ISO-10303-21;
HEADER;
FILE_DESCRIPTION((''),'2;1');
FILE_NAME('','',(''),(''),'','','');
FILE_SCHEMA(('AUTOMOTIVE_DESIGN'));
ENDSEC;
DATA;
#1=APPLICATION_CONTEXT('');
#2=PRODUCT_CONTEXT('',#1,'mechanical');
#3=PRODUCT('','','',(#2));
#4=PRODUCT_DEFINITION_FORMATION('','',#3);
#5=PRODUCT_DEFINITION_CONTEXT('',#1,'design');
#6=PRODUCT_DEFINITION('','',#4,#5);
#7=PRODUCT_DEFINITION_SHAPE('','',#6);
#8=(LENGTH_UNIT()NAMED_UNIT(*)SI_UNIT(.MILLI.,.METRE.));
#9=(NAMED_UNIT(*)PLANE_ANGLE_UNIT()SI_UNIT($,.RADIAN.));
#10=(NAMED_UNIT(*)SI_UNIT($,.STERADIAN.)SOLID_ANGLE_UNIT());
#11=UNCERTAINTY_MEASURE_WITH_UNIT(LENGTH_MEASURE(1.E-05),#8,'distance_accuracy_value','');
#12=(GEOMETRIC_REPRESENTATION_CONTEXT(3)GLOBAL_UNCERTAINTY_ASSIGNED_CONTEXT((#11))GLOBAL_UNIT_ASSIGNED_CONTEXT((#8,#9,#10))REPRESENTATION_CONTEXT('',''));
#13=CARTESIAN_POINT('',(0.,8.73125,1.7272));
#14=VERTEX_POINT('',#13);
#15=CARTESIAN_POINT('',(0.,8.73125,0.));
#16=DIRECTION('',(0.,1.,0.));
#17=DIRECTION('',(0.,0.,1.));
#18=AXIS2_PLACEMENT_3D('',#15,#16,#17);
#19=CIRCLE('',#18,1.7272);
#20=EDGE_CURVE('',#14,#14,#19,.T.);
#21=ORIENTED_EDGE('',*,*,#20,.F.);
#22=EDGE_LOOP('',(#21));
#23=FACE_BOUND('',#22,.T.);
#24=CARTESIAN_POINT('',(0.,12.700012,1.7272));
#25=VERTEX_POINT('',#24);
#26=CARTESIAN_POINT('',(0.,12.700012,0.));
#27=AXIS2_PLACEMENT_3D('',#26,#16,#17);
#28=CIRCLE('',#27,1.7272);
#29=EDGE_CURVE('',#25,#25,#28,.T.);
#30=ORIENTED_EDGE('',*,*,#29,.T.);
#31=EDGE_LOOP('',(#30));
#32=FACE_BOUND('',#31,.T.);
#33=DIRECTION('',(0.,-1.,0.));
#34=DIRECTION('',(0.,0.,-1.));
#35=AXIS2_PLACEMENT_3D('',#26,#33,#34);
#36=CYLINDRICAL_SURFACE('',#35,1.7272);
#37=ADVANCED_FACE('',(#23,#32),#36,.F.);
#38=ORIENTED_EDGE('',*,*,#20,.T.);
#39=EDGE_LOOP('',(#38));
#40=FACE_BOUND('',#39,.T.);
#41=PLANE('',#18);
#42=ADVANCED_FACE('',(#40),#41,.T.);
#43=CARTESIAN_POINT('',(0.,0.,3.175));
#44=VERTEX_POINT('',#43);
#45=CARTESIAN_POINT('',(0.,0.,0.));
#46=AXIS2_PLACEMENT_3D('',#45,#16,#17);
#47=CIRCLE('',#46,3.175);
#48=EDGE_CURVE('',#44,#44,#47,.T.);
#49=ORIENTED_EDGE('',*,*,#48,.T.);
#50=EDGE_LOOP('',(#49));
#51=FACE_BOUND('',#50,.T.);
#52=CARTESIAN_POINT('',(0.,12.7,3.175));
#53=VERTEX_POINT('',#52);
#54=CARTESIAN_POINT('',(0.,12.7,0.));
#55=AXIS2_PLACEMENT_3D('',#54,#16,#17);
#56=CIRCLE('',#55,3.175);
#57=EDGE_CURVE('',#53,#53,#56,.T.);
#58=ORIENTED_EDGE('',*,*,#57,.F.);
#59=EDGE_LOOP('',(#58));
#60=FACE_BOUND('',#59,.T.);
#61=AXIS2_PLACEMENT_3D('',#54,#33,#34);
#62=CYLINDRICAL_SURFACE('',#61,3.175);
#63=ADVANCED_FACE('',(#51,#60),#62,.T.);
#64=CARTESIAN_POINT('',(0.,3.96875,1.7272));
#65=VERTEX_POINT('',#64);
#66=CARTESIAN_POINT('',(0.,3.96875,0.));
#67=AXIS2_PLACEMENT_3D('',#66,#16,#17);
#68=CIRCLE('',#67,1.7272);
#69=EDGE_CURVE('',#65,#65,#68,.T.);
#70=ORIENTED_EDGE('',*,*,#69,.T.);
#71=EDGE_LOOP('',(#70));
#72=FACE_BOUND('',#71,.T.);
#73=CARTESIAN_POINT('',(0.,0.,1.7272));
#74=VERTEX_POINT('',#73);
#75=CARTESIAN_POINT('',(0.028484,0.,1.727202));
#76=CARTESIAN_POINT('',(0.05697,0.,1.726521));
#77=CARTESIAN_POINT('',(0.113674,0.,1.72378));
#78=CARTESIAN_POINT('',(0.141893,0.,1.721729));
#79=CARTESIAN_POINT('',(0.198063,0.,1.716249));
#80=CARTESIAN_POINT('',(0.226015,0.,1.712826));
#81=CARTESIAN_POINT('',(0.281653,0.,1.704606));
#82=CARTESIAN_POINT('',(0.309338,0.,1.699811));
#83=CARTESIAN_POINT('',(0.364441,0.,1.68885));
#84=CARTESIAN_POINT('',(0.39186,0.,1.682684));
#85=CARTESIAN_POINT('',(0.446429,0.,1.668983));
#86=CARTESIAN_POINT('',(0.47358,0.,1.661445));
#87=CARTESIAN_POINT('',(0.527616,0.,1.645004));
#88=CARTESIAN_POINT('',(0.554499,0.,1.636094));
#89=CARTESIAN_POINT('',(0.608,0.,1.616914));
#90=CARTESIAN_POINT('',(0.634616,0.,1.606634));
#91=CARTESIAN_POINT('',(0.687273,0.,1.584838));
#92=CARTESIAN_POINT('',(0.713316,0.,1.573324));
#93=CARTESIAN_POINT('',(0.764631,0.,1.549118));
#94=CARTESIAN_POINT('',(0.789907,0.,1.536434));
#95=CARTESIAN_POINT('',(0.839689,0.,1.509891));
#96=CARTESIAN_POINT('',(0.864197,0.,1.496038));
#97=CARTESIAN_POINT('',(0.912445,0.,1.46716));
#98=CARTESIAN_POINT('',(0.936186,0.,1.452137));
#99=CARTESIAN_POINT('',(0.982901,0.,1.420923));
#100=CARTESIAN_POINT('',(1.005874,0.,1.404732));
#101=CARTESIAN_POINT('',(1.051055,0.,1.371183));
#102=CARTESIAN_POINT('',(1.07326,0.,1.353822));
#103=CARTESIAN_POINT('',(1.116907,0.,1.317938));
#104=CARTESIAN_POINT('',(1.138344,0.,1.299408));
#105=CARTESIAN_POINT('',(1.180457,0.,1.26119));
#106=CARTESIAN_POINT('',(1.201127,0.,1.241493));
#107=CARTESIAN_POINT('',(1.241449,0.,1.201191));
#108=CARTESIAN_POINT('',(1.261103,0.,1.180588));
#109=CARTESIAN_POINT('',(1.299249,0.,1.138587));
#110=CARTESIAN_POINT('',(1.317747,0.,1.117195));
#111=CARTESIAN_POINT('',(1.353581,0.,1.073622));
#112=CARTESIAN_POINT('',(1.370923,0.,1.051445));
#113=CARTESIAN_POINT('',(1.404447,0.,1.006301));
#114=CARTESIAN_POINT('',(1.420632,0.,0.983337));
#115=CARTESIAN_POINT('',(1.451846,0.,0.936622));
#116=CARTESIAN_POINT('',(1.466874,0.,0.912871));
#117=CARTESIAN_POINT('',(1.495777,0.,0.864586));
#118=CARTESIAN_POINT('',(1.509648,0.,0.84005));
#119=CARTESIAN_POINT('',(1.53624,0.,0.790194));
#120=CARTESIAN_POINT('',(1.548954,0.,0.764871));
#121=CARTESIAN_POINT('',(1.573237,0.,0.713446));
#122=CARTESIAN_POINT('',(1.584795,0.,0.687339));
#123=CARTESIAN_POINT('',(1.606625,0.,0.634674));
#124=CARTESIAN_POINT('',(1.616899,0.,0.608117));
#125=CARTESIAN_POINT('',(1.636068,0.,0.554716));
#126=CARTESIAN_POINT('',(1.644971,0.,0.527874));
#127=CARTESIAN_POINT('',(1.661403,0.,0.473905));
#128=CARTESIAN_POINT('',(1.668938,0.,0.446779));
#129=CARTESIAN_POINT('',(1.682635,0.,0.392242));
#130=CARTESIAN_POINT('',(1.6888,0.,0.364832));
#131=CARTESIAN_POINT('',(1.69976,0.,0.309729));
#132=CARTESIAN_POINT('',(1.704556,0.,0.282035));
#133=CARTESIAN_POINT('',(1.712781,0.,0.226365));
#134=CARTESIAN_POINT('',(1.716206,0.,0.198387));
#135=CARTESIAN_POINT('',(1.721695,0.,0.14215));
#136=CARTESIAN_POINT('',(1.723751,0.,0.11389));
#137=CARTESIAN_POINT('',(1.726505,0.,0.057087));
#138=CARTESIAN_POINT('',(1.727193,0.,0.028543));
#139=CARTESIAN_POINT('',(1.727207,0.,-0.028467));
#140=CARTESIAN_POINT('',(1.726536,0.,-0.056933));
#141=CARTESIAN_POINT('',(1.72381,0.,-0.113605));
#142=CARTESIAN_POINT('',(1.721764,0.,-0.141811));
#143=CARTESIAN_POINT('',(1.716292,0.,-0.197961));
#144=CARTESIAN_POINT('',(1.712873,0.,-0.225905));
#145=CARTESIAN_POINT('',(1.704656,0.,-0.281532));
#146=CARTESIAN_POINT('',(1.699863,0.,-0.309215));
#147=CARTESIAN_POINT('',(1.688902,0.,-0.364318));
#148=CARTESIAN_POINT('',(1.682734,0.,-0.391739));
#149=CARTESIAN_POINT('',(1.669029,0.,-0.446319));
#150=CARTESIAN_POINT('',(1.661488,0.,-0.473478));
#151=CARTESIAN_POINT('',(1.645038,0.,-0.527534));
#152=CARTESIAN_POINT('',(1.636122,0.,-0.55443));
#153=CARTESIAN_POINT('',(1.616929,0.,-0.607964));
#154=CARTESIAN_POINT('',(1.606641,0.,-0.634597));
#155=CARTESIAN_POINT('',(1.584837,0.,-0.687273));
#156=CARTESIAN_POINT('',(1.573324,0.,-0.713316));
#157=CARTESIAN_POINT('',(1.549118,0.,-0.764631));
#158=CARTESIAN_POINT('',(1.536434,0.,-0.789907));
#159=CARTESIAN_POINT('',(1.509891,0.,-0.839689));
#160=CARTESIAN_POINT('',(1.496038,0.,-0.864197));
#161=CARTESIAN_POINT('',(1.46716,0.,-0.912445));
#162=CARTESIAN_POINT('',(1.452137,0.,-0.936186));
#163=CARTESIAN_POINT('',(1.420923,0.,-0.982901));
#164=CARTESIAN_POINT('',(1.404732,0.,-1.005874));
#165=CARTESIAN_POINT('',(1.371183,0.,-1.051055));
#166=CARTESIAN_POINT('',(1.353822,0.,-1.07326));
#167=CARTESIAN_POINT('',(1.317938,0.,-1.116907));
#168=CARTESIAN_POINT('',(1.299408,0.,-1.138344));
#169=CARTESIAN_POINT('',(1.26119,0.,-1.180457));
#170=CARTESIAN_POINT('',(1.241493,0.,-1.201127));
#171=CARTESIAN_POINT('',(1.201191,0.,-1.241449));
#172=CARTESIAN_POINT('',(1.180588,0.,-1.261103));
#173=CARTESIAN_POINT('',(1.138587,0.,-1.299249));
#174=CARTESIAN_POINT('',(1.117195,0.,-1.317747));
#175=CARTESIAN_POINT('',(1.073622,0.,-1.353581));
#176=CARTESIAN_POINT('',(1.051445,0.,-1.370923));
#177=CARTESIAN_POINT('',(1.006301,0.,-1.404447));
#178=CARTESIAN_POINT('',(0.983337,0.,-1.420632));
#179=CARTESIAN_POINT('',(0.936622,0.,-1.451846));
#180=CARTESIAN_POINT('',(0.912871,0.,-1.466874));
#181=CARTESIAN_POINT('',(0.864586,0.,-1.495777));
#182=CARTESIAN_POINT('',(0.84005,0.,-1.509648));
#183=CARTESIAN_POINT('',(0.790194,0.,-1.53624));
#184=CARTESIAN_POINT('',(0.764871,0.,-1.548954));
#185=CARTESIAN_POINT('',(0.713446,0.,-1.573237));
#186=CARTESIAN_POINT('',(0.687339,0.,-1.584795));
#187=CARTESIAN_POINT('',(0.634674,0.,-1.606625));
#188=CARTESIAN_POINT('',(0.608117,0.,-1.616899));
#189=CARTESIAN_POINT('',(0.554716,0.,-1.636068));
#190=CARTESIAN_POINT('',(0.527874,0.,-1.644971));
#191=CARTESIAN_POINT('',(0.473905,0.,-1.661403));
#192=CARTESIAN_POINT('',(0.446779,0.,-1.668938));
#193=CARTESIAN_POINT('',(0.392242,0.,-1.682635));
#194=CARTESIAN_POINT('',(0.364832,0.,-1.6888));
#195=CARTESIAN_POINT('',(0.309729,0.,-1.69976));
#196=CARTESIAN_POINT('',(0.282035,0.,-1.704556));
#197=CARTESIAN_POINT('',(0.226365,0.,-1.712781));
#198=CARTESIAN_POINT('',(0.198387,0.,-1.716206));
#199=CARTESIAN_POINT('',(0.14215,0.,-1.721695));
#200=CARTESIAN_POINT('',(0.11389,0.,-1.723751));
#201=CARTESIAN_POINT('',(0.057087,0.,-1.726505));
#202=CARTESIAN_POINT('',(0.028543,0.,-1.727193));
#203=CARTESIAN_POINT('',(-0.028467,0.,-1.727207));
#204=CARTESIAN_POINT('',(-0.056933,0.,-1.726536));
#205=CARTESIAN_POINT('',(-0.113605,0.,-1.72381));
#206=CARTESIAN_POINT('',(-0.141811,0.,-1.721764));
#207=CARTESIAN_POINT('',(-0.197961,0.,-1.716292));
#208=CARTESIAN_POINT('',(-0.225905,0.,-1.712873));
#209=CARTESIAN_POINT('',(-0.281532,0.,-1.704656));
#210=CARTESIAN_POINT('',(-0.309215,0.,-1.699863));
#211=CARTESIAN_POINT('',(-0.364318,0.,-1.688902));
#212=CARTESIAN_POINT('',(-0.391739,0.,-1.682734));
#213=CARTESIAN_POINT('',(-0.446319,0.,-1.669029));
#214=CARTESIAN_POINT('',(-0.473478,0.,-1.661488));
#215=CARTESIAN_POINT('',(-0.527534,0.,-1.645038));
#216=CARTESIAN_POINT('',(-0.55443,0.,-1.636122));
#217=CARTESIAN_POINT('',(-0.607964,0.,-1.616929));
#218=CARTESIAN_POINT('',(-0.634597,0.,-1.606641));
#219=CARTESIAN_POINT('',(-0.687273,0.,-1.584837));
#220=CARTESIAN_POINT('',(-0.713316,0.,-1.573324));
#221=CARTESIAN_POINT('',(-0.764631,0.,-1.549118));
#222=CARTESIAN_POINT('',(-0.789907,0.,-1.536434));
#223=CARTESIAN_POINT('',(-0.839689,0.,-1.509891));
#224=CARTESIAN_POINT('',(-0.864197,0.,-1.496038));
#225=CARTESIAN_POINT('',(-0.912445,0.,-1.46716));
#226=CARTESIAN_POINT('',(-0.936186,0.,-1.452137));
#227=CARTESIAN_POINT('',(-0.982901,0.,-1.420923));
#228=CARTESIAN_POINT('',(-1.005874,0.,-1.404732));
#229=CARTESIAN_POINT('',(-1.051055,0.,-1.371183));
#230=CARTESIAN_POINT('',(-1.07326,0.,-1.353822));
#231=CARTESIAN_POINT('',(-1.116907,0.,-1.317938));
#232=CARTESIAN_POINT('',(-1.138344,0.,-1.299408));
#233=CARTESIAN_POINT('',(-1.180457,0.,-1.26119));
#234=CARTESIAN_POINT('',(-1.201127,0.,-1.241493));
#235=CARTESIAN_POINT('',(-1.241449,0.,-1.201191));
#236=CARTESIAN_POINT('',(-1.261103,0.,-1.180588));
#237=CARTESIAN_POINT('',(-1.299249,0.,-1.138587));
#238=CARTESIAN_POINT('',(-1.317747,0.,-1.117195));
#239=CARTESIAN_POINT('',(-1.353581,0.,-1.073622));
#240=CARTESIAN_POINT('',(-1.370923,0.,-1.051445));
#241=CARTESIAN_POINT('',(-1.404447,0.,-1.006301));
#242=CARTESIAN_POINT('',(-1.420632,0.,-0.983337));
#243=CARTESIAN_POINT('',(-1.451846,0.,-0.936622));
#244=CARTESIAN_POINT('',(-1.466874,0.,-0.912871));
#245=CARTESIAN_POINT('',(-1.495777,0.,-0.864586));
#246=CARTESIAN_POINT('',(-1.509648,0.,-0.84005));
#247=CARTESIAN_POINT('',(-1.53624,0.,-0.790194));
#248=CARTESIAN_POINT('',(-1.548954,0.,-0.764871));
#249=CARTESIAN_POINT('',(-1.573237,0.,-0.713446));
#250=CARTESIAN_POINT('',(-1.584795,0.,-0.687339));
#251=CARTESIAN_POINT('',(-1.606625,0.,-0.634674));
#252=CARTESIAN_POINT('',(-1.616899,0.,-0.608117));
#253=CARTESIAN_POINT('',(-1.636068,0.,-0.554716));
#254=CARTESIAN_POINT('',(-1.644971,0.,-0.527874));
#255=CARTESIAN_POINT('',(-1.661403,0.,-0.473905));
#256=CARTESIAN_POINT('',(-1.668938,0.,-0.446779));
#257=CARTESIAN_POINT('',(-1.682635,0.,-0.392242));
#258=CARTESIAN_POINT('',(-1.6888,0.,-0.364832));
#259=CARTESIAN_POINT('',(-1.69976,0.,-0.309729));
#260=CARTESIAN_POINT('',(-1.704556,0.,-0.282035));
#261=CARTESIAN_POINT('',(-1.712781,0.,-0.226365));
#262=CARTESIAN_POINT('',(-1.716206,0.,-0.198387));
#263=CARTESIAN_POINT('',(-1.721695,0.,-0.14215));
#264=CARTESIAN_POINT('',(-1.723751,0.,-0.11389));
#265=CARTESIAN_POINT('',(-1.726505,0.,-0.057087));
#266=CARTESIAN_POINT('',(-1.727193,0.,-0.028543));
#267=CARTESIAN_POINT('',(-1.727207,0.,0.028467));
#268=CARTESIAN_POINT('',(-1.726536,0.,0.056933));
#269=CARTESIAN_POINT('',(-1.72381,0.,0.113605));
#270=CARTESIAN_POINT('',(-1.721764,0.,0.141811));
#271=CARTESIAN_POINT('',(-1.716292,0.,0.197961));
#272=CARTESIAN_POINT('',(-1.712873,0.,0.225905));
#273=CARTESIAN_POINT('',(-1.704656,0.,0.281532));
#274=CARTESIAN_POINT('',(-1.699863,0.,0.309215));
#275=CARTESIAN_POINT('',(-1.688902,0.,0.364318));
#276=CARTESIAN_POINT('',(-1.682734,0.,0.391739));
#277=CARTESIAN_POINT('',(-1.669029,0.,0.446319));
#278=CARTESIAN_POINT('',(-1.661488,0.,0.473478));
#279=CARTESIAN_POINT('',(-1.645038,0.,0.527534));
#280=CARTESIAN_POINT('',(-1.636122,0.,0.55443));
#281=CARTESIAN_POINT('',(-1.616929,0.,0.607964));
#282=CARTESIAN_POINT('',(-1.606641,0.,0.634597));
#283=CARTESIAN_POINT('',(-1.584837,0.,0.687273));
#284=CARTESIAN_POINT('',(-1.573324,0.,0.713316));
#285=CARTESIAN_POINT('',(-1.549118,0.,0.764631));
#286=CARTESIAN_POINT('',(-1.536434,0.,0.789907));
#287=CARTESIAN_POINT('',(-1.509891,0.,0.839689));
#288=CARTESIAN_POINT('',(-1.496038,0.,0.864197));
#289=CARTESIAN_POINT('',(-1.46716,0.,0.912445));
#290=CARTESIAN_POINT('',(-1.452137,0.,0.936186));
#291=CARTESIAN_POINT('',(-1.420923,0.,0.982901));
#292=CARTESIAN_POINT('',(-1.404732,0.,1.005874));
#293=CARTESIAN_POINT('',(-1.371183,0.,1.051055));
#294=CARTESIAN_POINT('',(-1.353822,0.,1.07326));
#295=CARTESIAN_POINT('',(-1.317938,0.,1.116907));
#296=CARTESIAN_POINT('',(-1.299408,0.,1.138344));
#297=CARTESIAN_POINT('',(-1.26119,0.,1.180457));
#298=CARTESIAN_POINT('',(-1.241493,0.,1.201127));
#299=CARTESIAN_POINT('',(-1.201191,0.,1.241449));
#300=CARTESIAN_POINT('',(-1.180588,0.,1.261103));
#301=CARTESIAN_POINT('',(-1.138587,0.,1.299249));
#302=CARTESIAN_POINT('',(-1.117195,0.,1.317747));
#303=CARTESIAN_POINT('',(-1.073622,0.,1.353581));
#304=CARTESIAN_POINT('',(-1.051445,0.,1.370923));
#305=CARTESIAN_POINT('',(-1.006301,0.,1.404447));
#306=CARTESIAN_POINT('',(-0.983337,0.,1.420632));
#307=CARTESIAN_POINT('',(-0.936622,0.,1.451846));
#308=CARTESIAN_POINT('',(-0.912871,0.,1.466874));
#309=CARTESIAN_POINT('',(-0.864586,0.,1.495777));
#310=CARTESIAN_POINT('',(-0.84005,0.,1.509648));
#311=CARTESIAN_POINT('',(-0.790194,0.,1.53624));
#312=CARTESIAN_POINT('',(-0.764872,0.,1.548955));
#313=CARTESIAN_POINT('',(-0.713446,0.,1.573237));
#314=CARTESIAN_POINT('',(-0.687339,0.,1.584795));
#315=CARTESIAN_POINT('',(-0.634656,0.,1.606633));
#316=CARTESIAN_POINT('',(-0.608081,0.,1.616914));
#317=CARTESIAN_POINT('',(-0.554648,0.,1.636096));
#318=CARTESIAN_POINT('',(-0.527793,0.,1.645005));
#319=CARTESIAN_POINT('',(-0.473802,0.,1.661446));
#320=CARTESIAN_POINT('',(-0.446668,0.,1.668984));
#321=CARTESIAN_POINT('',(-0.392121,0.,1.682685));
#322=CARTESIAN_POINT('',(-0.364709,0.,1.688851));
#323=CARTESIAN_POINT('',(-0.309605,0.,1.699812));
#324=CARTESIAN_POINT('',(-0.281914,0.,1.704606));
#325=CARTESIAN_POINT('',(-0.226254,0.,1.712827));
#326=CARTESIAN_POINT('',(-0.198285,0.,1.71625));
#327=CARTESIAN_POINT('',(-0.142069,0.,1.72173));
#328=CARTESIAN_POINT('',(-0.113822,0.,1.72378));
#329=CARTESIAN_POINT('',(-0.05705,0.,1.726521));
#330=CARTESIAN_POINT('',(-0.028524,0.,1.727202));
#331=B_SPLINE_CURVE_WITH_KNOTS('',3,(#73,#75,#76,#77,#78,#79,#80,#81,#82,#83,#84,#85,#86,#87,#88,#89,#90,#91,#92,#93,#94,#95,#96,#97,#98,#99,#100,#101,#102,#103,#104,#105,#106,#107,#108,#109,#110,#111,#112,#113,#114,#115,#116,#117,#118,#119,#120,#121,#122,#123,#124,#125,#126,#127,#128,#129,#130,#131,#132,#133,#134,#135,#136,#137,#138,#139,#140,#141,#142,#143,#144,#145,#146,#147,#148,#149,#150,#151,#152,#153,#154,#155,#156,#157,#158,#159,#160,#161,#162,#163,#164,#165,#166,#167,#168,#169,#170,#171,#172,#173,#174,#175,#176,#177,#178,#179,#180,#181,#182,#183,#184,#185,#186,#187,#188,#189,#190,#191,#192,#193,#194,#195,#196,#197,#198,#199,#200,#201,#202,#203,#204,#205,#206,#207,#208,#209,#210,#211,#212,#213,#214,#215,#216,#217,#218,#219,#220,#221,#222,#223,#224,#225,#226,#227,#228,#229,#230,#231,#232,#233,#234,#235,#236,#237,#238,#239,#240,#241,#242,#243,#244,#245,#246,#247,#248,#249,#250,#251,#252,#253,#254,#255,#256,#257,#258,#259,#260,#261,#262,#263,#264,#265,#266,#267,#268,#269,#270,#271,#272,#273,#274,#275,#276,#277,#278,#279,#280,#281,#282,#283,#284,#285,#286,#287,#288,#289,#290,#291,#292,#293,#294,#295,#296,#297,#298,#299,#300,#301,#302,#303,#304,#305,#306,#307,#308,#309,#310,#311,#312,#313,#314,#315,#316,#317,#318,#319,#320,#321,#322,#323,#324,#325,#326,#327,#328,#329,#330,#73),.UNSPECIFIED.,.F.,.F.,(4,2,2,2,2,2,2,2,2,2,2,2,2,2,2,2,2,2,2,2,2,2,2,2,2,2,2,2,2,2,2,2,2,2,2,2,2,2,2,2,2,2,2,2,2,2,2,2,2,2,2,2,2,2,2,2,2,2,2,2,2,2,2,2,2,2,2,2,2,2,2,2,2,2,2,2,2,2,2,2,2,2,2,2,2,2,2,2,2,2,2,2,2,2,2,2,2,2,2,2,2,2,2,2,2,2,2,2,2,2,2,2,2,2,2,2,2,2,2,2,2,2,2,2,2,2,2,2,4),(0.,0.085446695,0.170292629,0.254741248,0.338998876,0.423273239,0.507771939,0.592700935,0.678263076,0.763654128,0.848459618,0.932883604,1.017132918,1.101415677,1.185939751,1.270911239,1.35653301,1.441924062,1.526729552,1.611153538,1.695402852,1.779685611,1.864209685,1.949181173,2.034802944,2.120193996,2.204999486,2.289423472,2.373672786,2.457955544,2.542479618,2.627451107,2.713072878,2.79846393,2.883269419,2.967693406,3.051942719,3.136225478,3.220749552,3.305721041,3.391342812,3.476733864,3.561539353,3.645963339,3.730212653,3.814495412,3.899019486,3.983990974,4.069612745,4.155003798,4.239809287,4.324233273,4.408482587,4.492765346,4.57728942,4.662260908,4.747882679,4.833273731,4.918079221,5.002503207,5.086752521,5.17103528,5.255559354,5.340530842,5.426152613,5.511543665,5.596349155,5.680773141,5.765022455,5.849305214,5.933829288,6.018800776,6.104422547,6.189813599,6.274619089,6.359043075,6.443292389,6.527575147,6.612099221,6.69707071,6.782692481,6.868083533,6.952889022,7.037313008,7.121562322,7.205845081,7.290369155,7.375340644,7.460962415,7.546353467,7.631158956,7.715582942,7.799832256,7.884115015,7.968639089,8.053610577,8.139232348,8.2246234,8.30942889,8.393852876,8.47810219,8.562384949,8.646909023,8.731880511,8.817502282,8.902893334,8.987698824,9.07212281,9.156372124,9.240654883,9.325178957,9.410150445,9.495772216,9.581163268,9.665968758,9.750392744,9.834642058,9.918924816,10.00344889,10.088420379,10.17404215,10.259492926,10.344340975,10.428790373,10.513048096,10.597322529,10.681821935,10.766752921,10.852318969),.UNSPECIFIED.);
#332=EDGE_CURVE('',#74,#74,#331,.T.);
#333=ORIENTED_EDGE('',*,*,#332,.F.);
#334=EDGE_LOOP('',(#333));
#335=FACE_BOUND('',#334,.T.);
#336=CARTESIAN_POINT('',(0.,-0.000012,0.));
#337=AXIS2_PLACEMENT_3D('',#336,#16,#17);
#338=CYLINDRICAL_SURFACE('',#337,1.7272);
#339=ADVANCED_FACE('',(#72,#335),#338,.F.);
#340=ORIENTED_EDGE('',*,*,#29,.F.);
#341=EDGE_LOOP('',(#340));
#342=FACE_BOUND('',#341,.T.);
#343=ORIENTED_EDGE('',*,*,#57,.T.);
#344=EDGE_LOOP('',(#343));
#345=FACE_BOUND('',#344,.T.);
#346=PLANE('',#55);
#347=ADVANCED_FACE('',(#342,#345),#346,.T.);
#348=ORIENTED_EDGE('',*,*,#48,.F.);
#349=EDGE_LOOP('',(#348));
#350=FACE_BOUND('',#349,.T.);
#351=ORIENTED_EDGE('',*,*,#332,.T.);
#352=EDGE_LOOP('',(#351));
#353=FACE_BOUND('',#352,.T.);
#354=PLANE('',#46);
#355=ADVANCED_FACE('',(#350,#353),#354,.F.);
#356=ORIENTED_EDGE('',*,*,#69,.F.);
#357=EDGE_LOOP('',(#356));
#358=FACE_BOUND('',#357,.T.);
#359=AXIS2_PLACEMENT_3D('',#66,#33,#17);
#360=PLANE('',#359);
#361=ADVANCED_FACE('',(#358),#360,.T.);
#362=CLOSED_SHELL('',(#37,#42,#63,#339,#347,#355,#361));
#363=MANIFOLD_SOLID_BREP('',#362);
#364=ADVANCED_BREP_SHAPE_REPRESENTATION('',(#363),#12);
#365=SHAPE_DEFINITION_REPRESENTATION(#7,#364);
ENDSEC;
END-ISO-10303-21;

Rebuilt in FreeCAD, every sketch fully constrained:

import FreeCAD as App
import Part
import Sketcher

V = App.Vector
Q = App.Units.Quantity

doc = App.newDocument("Part")
body = doc.addObject("PartDesign::Body", "Body")

sketch1 = body.newObject("Sketcher::SketchObject", "Sketch")
sketch1.AttachmentSupport = (doc.getObject("XZ_Plane"), [""])
sketch1.MapMode = "FlatFace"
sketch1.addGeometry(Part.Circle(V(0, 0, 0), V(0, 0, 1), 3.2), False)
sketch1.addConstraint([
    Sketcher.Constraint("Coincident", 0, 3, -1, 1),
    Sketcher.Constraint("Diameter", 0, Q("0.25 in")),
])
pad1 = body.newObject("PartDesign::Pad", "Pad")
pad1.Profile = sketch1
pad1.Length = Q("0.5 in")
pad1.Reversed = True

sketch2 = body.newObject("Sketcher::SketchObject", "Sketch001")
sketch2.AttachmentSupport = (doc.getObject("XZ_Plane"), [""])
sketch2.MapMode = "FlatFace"
sketch2.AttachmentOffset = App.Placement(V(0, 0, -0.34375 * 25.4), App.Rotation())
sketch2.addGeometry(Part.Circle(V(0, 0, 0), V(0, 0, 1), 1.7), False)
sketch2.addConstraint([
    Sketcher.Constraint("Coincident", 0, 3, -1, 1),
    Sketcher.Constraint("Diameter", 0, Q("0.136 in")),
])
pocket1 = body.newObject("PartDesign::Pocket", "Pocket")
pocket1.Profile = sketch2
pocket1.Length = 18.439134
doc.recompute()

datumplane = body.newObject("PartDesign::Plane", "DatumPlane")
datumplane.AttachmentSupport = (doc.getObject("XZ_Plane"), [""])
datumplane.MapMode = "FlatFace"
datumplane.AttachmentOffset = App.Placement(V(0, 0, -0.25 * 25.4), App.Rotation())
mirrored = body.newObject("PartDesign::Mirrored", "Mirrored")
mirrored.Originals = [pocket1]
mirrored.MirrorPlane = (datumplane, [""])
body.Tip = mirrored

doc.recompute()
